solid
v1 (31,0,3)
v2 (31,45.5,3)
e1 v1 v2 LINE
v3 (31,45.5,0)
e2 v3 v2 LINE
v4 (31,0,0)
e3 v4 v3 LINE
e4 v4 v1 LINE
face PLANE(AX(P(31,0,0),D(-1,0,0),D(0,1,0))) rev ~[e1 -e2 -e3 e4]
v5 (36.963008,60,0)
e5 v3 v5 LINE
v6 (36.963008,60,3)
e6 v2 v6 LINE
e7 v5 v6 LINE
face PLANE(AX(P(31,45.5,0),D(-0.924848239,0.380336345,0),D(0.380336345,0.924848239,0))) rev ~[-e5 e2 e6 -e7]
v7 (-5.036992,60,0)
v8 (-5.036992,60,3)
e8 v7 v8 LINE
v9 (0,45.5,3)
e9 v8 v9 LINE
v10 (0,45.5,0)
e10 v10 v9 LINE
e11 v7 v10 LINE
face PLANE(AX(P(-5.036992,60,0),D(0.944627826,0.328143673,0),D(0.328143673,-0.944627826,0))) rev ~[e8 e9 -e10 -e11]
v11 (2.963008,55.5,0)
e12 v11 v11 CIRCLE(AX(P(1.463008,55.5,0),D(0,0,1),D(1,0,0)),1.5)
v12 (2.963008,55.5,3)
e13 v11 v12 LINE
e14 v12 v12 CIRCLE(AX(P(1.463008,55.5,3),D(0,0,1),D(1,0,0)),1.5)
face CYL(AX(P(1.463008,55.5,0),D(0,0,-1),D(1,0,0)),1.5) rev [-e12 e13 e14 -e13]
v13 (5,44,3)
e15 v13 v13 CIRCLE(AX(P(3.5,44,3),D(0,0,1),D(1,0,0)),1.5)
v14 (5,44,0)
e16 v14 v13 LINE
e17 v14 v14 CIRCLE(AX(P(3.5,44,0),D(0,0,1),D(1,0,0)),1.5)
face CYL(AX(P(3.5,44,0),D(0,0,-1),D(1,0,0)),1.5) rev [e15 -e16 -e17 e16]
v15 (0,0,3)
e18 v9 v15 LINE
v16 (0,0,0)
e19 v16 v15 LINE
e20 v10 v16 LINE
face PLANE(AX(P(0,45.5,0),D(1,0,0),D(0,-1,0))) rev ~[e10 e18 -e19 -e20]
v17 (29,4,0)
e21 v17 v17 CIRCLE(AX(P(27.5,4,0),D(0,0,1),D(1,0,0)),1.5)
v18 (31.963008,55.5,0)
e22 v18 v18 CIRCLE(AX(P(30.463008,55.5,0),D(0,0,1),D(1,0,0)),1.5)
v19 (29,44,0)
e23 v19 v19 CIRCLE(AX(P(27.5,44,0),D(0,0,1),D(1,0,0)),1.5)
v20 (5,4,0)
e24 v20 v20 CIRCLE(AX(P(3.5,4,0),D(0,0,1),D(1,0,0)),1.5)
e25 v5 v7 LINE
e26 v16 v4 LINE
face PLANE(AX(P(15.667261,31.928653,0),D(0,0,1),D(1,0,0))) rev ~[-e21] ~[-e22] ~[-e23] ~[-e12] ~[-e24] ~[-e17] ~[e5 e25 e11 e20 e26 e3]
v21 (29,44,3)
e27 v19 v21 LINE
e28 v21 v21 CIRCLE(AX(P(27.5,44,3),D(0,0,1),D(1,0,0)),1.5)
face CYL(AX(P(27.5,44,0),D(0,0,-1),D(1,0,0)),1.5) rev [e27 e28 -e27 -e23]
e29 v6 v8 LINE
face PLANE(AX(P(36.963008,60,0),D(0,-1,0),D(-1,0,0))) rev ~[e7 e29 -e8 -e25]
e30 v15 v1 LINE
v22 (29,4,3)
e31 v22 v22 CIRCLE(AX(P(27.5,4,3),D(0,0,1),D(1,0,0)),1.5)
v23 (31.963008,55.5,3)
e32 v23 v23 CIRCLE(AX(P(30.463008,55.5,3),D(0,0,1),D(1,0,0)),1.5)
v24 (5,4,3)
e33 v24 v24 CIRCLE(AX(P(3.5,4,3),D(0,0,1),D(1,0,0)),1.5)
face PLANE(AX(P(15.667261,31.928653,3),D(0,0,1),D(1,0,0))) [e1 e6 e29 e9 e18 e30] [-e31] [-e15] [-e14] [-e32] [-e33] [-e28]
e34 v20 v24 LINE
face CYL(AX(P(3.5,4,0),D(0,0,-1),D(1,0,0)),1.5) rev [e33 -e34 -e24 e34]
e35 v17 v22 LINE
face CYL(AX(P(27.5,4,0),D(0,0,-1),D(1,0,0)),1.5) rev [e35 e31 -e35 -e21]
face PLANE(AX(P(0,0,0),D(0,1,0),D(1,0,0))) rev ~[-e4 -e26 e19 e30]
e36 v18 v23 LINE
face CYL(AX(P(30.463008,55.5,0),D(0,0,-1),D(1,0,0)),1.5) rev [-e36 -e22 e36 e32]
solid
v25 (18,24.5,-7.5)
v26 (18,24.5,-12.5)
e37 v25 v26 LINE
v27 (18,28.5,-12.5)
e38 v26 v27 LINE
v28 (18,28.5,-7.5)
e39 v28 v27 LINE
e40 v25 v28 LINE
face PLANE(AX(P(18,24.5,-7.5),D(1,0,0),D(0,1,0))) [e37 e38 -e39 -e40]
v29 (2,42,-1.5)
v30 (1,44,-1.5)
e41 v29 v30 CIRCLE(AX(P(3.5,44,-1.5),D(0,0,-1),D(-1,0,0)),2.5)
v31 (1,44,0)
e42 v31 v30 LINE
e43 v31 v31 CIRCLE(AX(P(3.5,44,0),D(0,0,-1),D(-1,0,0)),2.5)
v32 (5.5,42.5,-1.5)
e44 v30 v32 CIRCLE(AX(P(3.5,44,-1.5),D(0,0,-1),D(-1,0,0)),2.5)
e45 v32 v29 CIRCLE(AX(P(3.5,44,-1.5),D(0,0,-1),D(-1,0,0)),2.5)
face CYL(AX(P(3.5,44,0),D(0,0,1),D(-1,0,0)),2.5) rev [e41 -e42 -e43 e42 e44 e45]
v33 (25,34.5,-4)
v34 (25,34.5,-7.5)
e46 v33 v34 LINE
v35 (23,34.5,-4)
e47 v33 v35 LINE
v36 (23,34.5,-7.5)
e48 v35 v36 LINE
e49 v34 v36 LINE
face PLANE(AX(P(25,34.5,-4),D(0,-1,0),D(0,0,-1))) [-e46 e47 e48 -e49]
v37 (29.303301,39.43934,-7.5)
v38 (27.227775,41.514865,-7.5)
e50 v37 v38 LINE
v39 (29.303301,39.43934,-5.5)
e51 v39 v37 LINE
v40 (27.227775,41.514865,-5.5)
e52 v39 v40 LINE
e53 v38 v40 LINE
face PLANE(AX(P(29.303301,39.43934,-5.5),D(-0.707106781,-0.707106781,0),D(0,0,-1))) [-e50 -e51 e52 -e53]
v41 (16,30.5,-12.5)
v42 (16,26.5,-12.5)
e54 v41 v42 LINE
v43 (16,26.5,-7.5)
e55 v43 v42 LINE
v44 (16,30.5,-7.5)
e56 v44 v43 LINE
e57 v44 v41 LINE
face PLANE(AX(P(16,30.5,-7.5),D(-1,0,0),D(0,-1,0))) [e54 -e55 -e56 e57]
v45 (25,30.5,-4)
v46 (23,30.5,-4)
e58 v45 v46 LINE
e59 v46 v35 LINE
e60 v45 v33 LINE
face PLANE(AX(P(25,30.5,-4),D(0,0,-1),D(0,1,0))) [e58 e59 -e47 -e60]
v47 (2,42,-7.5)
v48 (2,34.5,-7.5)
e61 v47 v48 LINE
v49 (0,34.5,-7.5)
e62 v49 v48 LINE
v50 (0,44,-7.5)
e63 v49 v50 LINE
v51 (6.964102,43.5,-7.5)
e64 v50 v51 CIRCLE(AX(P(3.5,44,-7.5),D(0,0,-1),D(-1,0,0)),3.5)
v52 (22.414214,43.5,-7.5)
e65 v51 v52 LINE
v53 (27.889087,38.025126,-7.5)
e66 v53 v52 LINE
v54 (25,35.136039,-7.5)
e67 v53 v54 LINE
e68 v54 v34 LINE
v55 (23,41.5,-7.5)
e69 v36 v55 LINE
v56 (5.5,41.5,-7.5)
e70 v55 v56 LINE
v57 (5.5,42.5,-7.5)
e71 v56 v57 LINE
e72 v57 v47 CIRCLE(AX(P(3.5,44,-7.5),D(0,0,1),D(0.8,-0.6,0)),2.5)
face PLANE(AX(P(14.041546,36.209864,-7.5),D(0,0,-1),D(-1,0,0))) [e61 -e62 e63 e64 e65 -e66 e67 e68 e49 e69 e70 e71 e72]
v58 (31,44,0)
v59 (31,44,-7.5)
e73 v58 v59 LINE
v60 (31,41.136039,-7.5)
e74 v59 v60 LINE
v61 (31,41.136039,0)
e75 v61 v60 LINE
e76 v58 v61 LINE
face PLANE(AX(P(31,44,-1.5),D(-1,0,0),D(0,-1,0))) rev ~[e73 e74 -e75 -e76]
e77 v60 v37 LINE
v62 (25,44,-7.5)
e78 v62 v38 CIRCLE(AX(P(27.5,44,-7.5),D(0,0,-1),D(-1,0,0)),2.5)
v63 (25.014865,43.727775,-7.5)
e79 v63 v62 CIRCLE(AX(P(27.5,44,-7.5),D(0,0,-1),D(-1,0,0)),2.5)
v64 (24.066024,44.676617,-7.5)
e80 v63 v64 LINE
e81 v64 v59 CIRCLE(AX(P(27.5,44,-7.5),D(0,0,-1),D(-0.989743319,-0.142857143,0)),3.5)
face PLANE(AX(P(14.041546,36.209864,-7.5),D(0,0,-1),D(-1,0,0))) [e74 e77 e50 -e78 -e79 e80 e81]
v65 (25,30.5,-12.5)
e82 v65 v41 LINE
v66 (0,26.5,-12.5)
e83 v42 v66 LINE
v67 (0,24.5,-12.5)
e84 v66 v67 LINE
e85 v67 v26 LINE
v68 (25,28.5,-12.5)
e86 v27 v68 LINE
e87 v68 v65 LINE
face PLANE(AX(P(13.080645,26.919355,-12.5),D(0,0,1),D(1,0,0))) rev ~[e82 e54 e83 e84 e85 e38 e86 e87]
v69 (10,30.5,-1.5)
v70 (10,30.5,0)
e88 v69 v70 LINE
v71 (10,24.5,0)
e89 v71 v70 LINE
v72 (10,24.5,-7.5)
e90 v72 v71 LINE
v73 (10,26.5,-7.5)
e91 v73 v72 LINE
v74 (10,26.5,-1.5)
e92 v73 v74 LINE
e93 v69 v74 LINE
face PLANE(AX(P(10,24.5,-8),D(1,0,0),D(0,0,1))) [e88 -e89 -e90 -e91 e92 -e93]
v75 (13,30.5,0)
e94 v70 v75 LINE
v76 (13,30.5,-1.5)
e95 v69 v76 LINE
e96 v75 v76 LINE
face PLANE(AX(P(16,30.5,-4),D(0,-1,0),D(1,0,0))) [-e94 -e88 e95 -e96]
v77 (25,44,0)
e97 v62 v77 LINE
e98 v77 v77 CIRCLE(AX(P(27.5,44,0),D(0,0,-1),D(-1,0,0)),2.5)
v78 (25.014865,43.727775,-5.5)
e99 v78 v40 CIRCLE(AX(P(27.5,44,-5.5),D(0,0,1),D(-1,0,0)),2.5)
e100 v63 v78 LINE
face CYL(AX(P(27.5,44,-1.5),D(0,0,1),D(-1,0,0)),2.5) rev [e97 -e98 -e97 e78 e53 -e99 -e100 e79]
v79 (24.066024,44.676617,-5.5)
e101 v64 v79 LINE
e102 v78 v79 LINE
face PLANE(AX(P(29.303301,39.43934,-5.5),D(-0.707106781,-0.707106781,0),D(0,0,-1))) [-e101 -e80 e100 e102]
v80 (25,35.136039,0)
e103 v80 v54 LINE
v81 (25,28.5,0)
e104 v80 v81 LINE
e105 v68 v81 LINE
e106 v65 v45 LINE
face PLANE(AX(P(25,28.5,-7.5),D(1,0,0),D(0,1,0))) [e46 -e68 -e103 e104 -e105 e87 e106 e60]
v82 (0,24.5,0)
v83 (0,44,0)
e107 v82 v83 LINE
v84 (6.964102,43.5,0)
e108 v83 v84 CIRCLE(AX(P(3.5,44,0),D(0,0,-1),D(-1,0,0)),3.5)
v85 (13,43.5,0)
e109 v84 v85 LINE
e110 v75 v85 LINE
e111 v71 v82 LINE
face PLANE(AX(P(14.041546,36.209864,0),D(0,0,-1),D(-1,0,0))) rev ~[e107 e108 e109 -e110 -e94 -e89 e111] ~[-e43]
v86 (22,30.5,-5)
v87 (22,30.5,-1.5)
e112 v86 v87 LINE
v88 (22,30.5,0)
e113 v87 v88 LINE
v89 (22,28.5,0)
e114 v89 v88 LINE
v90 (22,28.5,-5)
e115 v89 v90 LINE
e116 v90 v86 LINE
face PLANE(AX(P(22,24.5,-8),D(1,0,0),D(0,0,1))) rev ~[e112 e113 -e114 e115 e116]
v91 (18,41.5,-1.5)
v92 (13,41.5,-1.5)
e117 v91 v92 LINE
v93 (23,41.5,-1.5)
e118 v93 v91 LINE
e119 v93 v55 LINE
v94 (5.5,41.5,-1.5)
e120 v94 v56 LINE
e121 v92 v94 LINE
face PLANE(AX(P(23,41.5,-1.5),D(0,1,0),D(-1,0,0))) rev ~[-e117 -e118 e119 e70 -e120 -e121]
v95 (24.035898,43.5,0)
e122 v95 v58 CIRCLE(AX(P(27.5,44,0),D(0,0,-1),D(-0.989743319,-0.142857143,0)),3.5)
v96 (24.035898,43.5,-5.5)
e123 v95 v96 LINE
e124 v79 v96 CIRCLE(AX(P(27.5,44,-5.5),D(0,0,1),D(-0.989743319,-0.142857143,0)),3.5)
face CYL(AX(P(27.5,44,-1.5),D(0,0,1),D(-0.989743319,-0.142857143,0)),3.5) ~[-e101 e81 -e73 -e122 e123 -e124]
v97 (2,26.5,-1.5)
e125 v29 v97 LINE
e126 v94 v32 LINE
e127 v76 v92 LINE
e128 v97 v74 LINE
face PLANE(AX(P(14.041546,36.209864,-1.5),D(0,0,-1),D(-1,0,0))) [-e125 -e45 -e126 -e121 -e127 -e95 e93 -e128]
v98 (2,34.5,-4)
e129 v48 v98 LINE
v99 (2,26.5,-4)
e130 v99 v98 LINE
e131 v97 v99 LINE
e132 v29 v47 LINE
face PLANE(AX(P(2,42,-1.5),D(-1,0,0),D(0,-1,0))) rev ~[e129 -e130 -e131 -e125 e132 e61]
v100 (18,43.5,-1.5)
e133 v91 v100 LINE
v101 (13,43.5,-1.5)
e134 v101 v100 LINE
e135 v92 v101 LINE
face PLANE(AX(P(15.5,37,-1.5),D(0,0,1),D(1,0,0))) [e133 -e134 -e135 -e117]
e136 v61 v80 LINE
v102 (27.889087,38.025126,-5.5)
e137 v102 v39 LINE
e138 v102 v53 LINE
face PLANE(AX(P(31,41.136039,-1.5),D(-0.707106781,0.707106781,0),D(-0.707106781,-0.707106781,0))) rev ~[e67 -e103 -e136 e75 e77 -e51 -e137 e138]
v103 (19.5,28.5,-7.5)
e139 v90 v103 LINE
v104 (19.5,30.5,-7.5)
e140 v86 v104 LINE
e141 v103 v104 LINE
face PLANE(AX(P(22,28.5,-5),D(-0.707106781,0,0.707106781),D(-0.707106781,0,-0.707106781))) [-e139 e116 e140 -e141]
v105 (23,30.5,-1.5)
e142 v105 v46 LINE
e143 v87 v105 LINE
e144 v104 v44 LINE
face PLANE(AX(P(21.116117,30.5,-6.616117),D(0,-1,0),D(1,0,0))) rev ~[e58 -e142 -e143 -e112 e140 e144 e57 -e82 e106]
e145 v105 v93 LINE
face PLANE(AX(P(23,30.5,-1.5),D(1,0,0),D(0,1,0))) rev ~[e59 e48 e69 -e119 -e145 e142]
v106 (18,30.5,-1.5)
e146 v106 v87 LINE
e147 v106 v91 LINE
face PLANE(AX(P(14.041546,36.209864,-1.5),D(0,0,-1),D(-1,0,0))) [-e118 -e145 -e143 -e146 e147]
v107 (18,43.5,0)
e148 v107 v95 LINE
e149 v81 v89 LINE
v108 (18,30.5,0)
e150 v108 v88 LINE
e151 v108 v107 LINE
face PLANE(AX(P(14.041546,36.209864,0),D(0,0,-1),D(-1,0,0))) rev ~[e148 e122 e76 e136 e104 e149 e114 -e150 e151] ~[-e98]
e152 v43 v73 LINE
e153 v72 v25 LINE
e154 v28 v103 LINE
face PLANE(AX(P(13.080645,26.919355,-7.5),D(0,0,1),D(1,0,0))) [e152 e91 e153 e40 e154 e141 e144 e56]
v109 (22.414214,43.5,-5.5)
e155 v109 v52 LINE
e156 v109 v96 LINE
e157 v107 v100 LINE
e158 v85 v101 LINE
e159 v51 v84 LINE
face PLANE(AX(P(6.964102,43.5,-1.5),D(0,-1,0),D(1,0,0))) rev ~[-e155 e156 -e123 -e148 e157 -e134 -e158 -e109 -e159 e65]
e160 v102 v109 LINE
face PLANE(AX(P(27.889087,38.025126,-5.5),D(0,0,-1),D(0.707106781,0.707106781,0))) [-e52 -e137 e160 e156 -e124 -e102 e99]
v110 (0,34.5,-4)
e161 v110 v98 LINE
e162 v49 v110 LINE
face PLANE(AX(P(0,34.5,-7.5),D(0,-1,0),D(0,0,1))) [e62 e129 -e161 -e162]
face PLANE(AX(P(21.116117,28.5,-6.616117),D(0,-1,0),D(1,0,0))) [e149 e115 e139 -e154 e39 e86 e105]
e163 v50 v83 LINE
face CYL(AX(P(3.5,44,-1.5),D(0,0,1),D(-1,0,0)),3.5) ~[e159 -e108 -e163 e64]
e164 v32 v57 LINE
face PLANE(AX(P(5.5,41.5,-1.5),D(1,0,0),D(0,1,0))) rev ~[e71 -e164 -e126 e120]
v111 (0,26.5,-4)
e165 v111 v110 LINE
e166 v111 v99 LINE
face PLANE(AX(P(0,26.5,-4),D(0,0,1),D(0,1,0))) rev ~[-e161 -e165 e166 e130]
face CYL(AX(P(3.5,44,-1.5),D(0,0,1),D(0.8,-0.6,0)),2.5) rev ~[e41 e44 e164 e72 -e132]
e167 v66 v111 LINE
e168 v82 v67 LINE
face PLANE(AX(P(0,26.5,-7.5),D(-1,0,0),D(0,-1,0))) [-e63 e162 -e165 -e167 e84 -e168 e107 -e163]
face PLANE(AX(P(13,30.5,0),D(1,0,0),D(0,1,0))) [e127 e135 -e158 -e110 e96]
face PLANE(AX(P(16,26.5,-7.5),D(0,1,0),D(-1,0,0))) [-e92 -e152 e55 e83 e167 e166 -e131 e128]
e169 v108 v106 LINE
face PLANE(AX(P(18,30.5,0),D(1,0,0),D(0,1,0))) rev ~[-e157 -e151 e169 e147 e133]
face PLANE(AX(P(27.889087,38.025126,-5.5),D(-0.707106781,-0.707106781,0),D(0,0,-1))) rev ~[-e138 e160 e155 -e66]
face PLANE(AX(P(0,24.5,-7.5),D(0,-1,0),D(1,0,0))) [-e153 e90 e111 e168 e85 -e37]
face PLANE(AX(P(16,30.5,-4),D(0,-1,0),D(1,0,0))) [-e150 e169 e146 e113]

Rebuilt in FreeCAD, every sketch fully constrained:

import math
import FreeCAD as App
import Part
import Sketcher
Q = App.Units.Quantity


def add_polygon(sketch, points):
    """Adds a closed chain of lines whose ends are joined by coincident constraints."""
    first, n = sketch.GeometryCount, len(points)
    for a, b in zip(points, points[1:] + points[:1]):
        sketch.addGeometry(Part.LineSegment(App.Vector(*a, 0), App.Vector(*b, 0)), False)
    for i in range(n):
        sketch.addConstraint(Sketcher.Constraint("Coincident", first + i, 2, first + (i + 1) % n, 1))

doc = App.newDocument("Part")
params = doc.addObject("Spreadsheet::Sheet", "Params")
for row, (alias, value) in enumerate([
    ("sketch1_diameter", "3 mm"),
    ("sketch1_width", "31 mm"),
    ("sketch1_width2", "42 mm"),
    ("sketch1_height", "45.5 mm"),
    ("pad1_length", "3 mm"),
    ("sketch2_diameter", "5 mm"),
    ("sketch2_radius", "3.5 mm"),
    ("sketch2_width", "7 mm"),
    ("sketch2_width2", "18 mm"),
    ("sketch2_height", "4 mm"),
    ("pad2_length", "1.5 mm"),
    ("sketch3_diameter", "5 mm"),
    ("sketch3_radius", "3.5 mm"),
    ("sketch3_width", "7 mm"),
    ("sketch3_width2", "18 mm"),
    ("sketch3_width3", "14 mm"),
    ("pad3_length", "6 mm"),
    ("sketch4_width", "12 mm"),
    ("sketch4_height", "8 mm"),
    ("pocket1_length", "6 mm"),
    ("sketch5_width", "4 mm"),
    ("sketch5_height", "8 mm"),
    ("pocket2_length", "2 mm"),
    ("sketch6_width", "5 mm"),
    ("sketch6_height", "13 mm"),
    ("pocket3_length", "1.5 mm"),
    ("sketch7_width", "2 mm"),
    ("sketch8_width", "7 mm"),
    ("sketch8_width2", "18 mm"),
    ("sketch8_width3", "16 mm"),
    ("sketch8_height", "4 mm"),
    ("sketch8_height2", "2 mm"),
    ("pad4_length", "5 mm"),
    ("sketch9_width", "8 mm"),
    ("sketch9_height", "3.5 mm"),
    ("pocket5_length", "2 mm"),
    ("sketch10_width", "2.5 mm"),
    ("pad5_length", "2 mm"),
], start=1):
    params.set(f"A{row}", alias)
    params.set(f"B{row}", "=" + value)
    params.setAlias(f"B{row}", alias)

body = doc.addObject("PartDesign::Body", "Body")

# Sketch on XY plane
sketch1 = body.newObject("Sketcher::SketchObject", "Sketch")
sketch1.AttachmentSupport = (doc.getObject("XY_Plane"), [""])
sketch1.MapMode = "FlatFace"
add_polygon(sketch1, [(0, 0), (31, 0), (31, 45.5), (37, 60), (-5, 60), (0, 45.5)])  # lines 0-5
sketch1.addGeometry(Part.Circle(App.Vector(3.5, 4, 0), App.Vector(0, 0, 1), 1.5), False)  # 6
sketch1.addGeometry(Part.Circle(App.Vector(27.5, 4, 0), App.Vector(0, 0, 1), 1.5), False)  # 7
sketch1.addGeometry(Part.Circle(App.Vector(3.5, 44, 0), App.Vector(0, 0, 1), 1.5), False)  # 8
sketch1.addGeometry(Part.Circle(App.Vector(1.5, 55.5, 0), App.Vector(0, 0, 1), 1.5), False)  # 9
sketch1.addGeometry(Part.Circle(App.Vector(27.5, 44, 0), App.Vector(0, 0, 1), 1.5), False)  # 10
sketch1.addGeometry(Part.Circle(App.Vector(30.5, 55.5, 0), App.Vector(0, 0, 1), 1.5), False)  # 11
sketch1.addConstraint(Sketcher.Constraint("Horizontal", 0))
sketch1.addConstraint(Sketcher.Constraint("Vertical", 1))
sketch1.addConstraint(Sketcher.Constraint("Horizontal", 3))
sketch1.addConstraint(Sketcher.Constraint("Vertical", 5))
sketch1.addConstraint(Sketcher.Constraint("Coincident", 5, 2, -1, 1))
sketch1.addConstraint(Sketcher.Constraint("Equal", 6, 7))
sketch1.addConstraint(Sketcher.Constraint("Equal", 7, 8))
sketch1.addConstraint(Sketcher.Constraint("Equal", 8, 9))
sketch1.addConstraint(Sketcher.Constraint("Equal", 9, 10))
sketch1.addConstraint(Sketcher.Constraint("Equal", 10, 11))
sketch1.addConstraint(Sketcher.Constraint("Horizontal", 6, 3, 7, 3))
sketch1.addConstraint(Sketcher.Constraint("Horizontal", 8, 3, 10, 3))
sketch1.addConstraint(Sketcher.Constraint("Horizontal", 9, 3, 11, 3))
sketch1.addConstraint(Sketcher.Constraint("Horizontal", 1, 2, 4, 2))
sketch1.addConstraint(Sketcher.Constraint("Vertical", 6, 3, 8, 3))
sketch1.addConstraint(Sketcher.Constraint("Vertical", 7, 3, 10, 3))
sketch1.addConstraint(Sketcher.Constraint("Diameter", 6, 3.0))
sketch1.addConstraint(Sketcher.Constraint("DistanceX", 0, 1, 0, 2, 31.0))
sketch1.addConstraint(Sketcher.Constraint("DistanceX", 3, 2, 3, 1, 42.0))
sketch1.addConstraint(Sketcher.Constraint("DistanceY", 1, 1, 1, 2, 45.5))
sketch1.addConstraint(Sketcher.Constraint("DistanceY", -1, 1, 6, 3, 4.0))
sketch1.addConstraint(Sketcher.Constraint("DistanceY", -1, 1, 8, 3, 44.0))
sketch1.addConstraint(Sketcher.Constraint("DistanceY", -1, 1, 2, 2, 60.0))
sketch1.addConstraint(Sketcher.Constraint("DistanceX", 6, 3, 7, 3, 24.0))
sketch1.addConstraint(Sketcher.Constraint("DistanceX", 9, 3, 11, 3, 29.0))
sketch1.addConstraint(Sketcher.Constraint("DistanceY", 1, 2, 11, 3, 10.0))
sketch1.addConstraint(Sketcher.Constraint("DistanceX", -1, 1, 6, 3, 3.5))
sketch1.addConstraint(Sketcher.Constraint("DistanceX", 11, 3, 2, 2, 6.5))
sketch1.addConstraint(Sketcher.Constraint("Distance", 4, 15.349961))
sketch1.setExpression("Constraints[22]", "Params.sketch1_diameter")
sketch1.setExpression("Constraints[23]", "Params.sketch1_width")
sketch1.setExpression("Constraints[24]", "Params.sketch1_width2")
sketch1.setExpression("Constraints[25]", "Params.sketch1_height")
pad1 = body.newObject("PartDesign::Pad", "Pad")
pad1.Profile = sketch1
pad1.setExpression("Length", "Params.pad1_length")
body2 = doc.addObject("PartDesign::Body", "Body001")

# Sketch on XY plane
sketch2 = body2.newObject("Sketcher::SketchObject", "Sketch001")
sketch2.AttachmentSupport = (doc.getObject("XY_Plane001"), [""])
sketch2.MapMode = "FlatFace"
sketch2.addGeometry(Part.LineSegment(App.Vector(0, 24.5, 0), App.Vector(0, 44, 0)), False)
sketch2.addGeometry(Part.ArcOfCircle(Part.Circle(App.Vector(3.5, 44, 0), App.Vector(0, 0, 1), 3.5), math.radians(-8), math.radians(180)), False)
sketch2.addGeometry(Part.LineSegment(App.Vector(7, 43.5, 0), App.Vector(24, 43.5, 0)), False)
sketch2.addGeometry(Part.ArcOfCircle(Part.Circle(App.Vector(27.5, 44, 0), App.Vector(0, 0, 1), 3.5), math.radians(0), math.radians(188)), False)
sketch2.addGeometry(Part.LineSegment(App.Vector(31, 44, 0), App.Vector(31, 41.1, 0)), False)
sketch2.addGeometry(Part.LineSegment(App.Vector(31, 41.1, 0), App.Vector(25, 35.1, 0)), False)
sketch2.addGeometry(Part.LineSegment(App.Vector(25, 35.1, 0), App.Vector(25, 28.5, 0)), False)
sketch2.addGeometry(Part.LineSegment(App.Vector(25, 28.5, 0), App.Vector(18, 28.5, 0)), False)
sketch2.addGeometry(Part.LineSegment(App.Vector(18, 28.5, 0), App.Vector(18, 24.5, 0)), False)
sketch2.addGeometry(Part.LineSegment(App.Vector(18, 24.5, 0), App.Vector(0, 24.5, 0)), False)
sketch2.addGeometry(Part.Circle(App.Vector(27.5, 44, 0), App.Vector(0, 0, 1), 2.5), False)
sketch2.addGeometry(Part.Circle(App.Vector(3.5, 44, 0), App.Vector(0, 0, 1), 2.5), False)
sketch2.addConstraint(Sketcher.Constraint("Tangent", 0, 2, 1, 2))
sketch2.addConstraint(Sketcher.Constraint("Coincident", 1, 1, 2, 1))
sketch2.addConstraint(Sketcher.Constraint("Coincident", 2, 2, 3, 2))
sketch2.addConstraint(Sketcher.Constraint("Tangent", 3, 1, 4, 1))
sketch2.addConstraint(Sketcher.Constraint("Coincident", 4, 2, 5, 1))
sketch2.addConstraint(Sketcher.Constraint("Coincident", 5, 2, 6, 1))
sketch2.addConstraint(Sketcher.Constraint("Coincident", 6, 2, 7, 1))
sketch2.addConstraint(Sketcher.Constraint("Coincident", 7, 2, 8, 1))
sketch2.addConstraint(Sketcher.Constraint("Coincident", 8, 2, 9, 1))
sketch2.addConstraint(Sketcher.Constraint("Coincident", 9, 2, 0, 1))
sketch2.addConstraint(Sketcher.Constraint("Vertical", 0))
sketch2.addConstraint(Sketcher.Constraint("Horizontal", 2))
sketch2.addConstraint(Sketcher.Constraint("Vertical", 4))
sketch2.addConstraint(Sketcher.Constraint("Vertical", 6))
sketch2.addConstraint(Sketcher.Constraint("Horizontal", 7))
sketch2.addConstraint(Sketcher.Constraint("Vertical", 8))
sketch2.addConstraint(Sketcher.Constraint("Horizontal", 9))
sketch2.addConstraint(Sketcher.Constraint("Coincident", 10, 3, 3, 3))
sketch2.addConstraint(Sketcher.Constraint("Coincident", 11, 3, 1, 3))
sketch2.addConstraint(Sketcher.Constraint("Equal", 1, 3))
sketch2.addConstraint(Sketcher.Constraint("Equal", 10, 11))
sketch2.addConstraint(Sketcher.Constraint("PointOnObject", 0, 2, -2))
sketch2.addConstraint(Sketcher.Constraint("Horizontal", 1, 3, 3, 3))
sketch2.addConstraint(Sketcher.Constraint("Diameter", 10, 5.0))
sketch2.addConstraint(Sketcher.Constraint("Radius", 1, 3.5))
sketch2.addConstraint(Sketcher.Constraint("DistanceX", 7, 2, 7, 1, 7.0))
sketch2.addConstraint(Sketcher.Constraint("DistanceX", 9, 2, 9, 1, 18.0))
sketch2.addConstraint(Sketcher.Constraint("DistanceY", 8, 2, 8, 1, 4.0))
sketch2.addConstraint(Sketcher.Constraint("Angle", 5, Q("-135 deg")))
sketch2.addConstraint(Sketcher.Constraint("DistanceY", 0, 1, 0, 2, 19.5))
sketch2.addConstraint(Sketcher.Constraint("DistanceY", -1, 1, 1, 3, 44.0))
sketch2.addConstraint(Sketcher.Constraint("DistanceX", -1, 1, 3, 1, 31.0))
sketch2.addConstraint(Sketcher.Constraint("DistanceY", 6, 2, 2, 2, 15.0))
sketch2.addConstraint(Sketcher.Constraint("DistanceY", 4, 2, 4, 1, 2.863961))
sketch2.setExpression("Constraints[23]", "Params.sketch2_diameter")
sketch2.setExpression("Constraints[24]", "Params.sketch2_radius")
sketch2.setExpression("Constraints[25]", "Params.sketch2_width")
sketch2.setExpression("Constraints[26]", "Params.sketch2_width2")
sketch2.setExpression("Constraints[27]", "Params.sketch2_height")
pad2 = body2.newObject("PartDesign::Pad", "Pad001")
pad2.Profile = sketch2
pad2.setExpression("Length", "Params.pad2_length")
pad2.Reversed = True

# Sketch on XY plane
sketch3 = body2.newObject("Sketcher::SketchObject", "Sketch002")
sketch3.AttachmentSupport = (doc.getObject("XY_Plane001"), [""])
sketch3.MapMode = "FlatFace"
sketch3.AttachmentOffset = App.Placement(App.Vector(0, 0, -1.5), App.Rotation())
sketch3.addGeometry(Part.LineSegment(App.Vector(7, 43.5, 0), App.Vector(24, 43.5, 0)), False)
sketch3.addGeometry(Part.ArcOfCircle(Part.Circle(App.Vector(27.5, 44, 0), App.Vector(0, 0, 1), 3.5), math.radians(0), math.radians(188)), False)
sketch3.addGeometry(Part.LineSegment(App.Vector(31, 44, 0), App.Vector(31, 41.1, 0)), False)
sketch3.addGeometry(Part.LineSegment(App.Vector(31, 41.1, 0), App.Vector(25, 35.1, 0)), False)
sketch3.addGeometry(Part.LineSegment(App.Vector(25, 35.1, 0), App.Vector(25, 28.5, 0)), False)
sketch3.addGeometry(Part.LineSegment(App.Vector(25, 28.5, 0), App.Vector(18, 28.5, 0)), False)
sketch3.addGeometry(Part.LineSegment(App.Vector(18, 28.5, 0), App.Vector(18, 24.5, 0)), False)
sketch3.addGeometry(Part.LineSegment(App.Vector(18, 24.5, 0), App.Vector(0, 24.5, 0)), False)
sketch3.addGeometry(Part.LineSegment(App.Vector(0, 24.5, 0), App.Vector(0, 44, 0)), False)
sketch3.addGeometry(Part.ArcOfCircle(Part.Circle(App.Vector(3.5, 44, 0), App.Vector(0, 0, 1), 3.5), math.radians(-8), math.radians(180)), False)
sketch3.addGeometry(Part.LineSegment(App.Vector(23, 30.5, 0), App.Vector(23, 41.5, 0)), False)
sketch3.addGeometry(Part.LineSegment(App.Vector(23, 41.5, 0), App.Vector(5.5, 41.5, 0)), False)
sketch3.addGeometry(Part.LineSegment(App.Vector(5.5, 41.5, 0), App.Vector(5.5, 42.5, 0)), False)
sketch3.addGeometry(Part.ArcOfCircle(Part.Circle(App.Vector(3.5, 44, 0), App.Vector(0, 0, 1), 2.5), math.radians(-37), math.radians(233)), False)
sketch3.addGeometry(Part.LineSegment(App.Vector(2, 42, 0), App.Vector(2, 26.5, 0)), False)
sketch3.addGeometry(Part.LineSegment(App.Vector(2, 26.5, 0), App.Vector(16, 26.5, 0)), False)
sketch3.addGeometry(Part.LineSegment(App.Vector(16, 26.5, 0), App.Vector(16, 30.5, 0)), False)
sketch3.addGeometry(Part.LineSegment(App.Vector(16, 30.5, 0), App.Vector(23, 30.5, 0)), False)
sketch3.addGeometry(Part.Circle(App.Vector(27.5, 44, 0), App.Vector(0, 0, 1), 2.5), False)
sketch3.addConstraint(Sketcher.Constraint("Coincident", 0, 2, 1, 2))
sketch3.addConstraint(Sketcher.Constraint("Tangent", 1, 1, 2, 1))
sketch3.addConstraint(Sketcher.Constraint("Coincident", 2, 2, 3, 1))
sketch3.addConstraint(Sketcher.Constraint("Coincident", 3, 2, 4, 1))
sketch3.addConstraint(Sketcher.Constraint("Coincident", 4, 2, 5, 1))
sketch3.addConstraint(Sketcher.Constraint("Coincident", 5, 2, 6, 1))
sketch3.addConstraint(Sketcher.Constraint("Coincident", 6, 2, 7, 1))
sketch3.addConstraint(Sketcher.Constraint("Coincident", 7, 2, 8, 1))
sketch3.addConstraint(Sketcher.Constraint("Tangent", 8, 2, 9, 2))
sketch3.addConstraint(Sketcher.Constraint("Coincident", 9, 1, 0, 1))
sketch3.addConstraint(Sketcher.Constraint("Coincident", 10, 2, 11, 1))
sketch3.addConstraint(Sketcher.Constraint("Coincident", 11, 2, 12, 1))
sketch3.addConstraint(Sketcher.Constraint("Coincident", 12, 2, 13, 1))
sketch3.addConstraint(Sketcher.Constraint("Coincident", 13, 2, 14, 1))
sketch3.addConstraint(Sketcher.Constraint("Coincident", 14, 2, 15, 1))
sketch3.addConstraint(Sketcher.Constraint("Coincident", 15, 2, 16, 1))
sketch3.addConstraint(Sketcher.Constraint("Coincident", 16, 2, 17, 1))
sketch3.addConstraint(Sketcher.Constraint("Coincident", 17, 2, 10, 1))
sketch3.addConstraint(Sketcher.Constraint("Horizontal", 0))
sketch3.addConstraint(Sketcher.Constraint("Vertical", 2))
sketch3.addConstraint(Sketcher.Constraint("Vertical", 4))
sketch3.addConstraint(Sketcher.Constraint("Horizontal", 5))
sketch3.addConstraint(Sketcher.Constraint("Vertical", 6))
sketch3.addConstraint(Sketcher.Constraint("Horizontal", 7))
sketch3.addConstraint(Sketcher.Constraint("Vertical", 8))
sketch3.addConstraint(Sketcher.Constraint("Vertical", 10))
sketch3.addConstraint(Sketcher.Constraint("Horizontal", 11))
sketch3.addConstraint(Sketcher.Constraint("Vertical", 12))
sketch3.addConstraint(Sketcher.Constraint("Vertical", 14))
sketch3.addConstraint(Sketcher.Constraint("Horizontal", 15))
sketch3.addConstraint(Sketcher.Constraint("Vertical", 16))
sketch3.addConstraint(Sketcher.Constraint("Horizontal", 17))
sketch3.addConstraint(Sketcher.Constraint("Coincident", 13, 3, 9, 3))
sketch3.addConstraint(Sketcher.Constraint("Coincident", 18, 3, 1, 3))
sketch3.addConstraint(Sketcher.Constraint("Equal", 1, 9))
sketch3.addConstraint(Sketcher.Constraint("Equal", 13, 18))
sketch3.addConstraint(Sketcher.Constraint("PointOnObject", 7, 2, -2))
sketch3.addConstraint(Sketcher.Constraint("Horizontal", 1, 3, 9, 3))
sketch3.addConstraint(Sketcher.Constraint("Equal", 5, 17))
sketch3.addConstraint(Sketcher.Constraint("Equal", 6, 16))
sketch3.addConstraint(Sketcher.Constraint("Diameter", 18, 5.0))
sketch3.addConstraint(Sketcher.Constraint("Radius", 1, 3.5))
sketch3.addConstraint(Sketcher.Constraint("DistanceX", 5, 2, 5, 1, 7.0))
sketch3.addConstraint(Sketcher.Constraint("DistanceX", 7, 2, 7, 1, 18.0))
sketch3.addConstraint(Sketcher.Constraint("DistanceX", 15, 1, 15, 2, 14.0))
sketch3.addConstraint(Sketcher.Constraint("DistanceY", 6, 2, 6, 1, 4.0))
sketch3.addConstraint(Sketcher.Constraint("DistanceY", 10, 1, 10, 2, 11.0))
sketch3.addConstraint(Sketcher.Constraint("DistanceY", 12, 1, 12, 2, 1.0))
sketch3.addConstraint(Sketcher.Constraint("Angle", 3, Q("-135 deg")))
sketch3.addConstraint(Sketcher.Constraint("DistanceX", 11, 2, 11, 1, 17.5))
sketch3.addConstraint(Sketcher.Constraint("DistanceY", 8, 1, 8, 2, 19.5))
sketch3.addConstraint(Sketcher.Constraint("DistanceY", 14, 2, 14, 1, 15.5))
sketch3.addConstraint(Sketcher.Constraint("DistanceY", -1, 1, 1, 3, 44.0))
sketch3.addConstraint(Sketcher.Constraint("DistanceX", -1, 1, 1, 1, 31.0))
sketch3.addConstraint(Sketcher.Constraint("DistanceY", 4, 2, 0, 2, 15.0))
sketch3.addConstraint(Sketcher.Constraint("DistanceY", 2, 2, 2, 1, 2.863961))
sketch3.setExpression("Constraints[40]", "Params.sketch3_diameter")
sketch3.setExpression("Constraints[41]", "Params.sketch3_radius")
sketch3.setExpression("Constraints[42]", "Params.sketch3_width")
sketch3.setExpression("Constraints[43]", "Params.sketch3_width2")
sketch3.setExpression("Constraints[44]", "Params.sketch3_width3")
pad3 = body2.newObject("PartDesign::Pad", "Pad002")
pad3.Profile = sketch3
pad3.setExpression("Length", "Params.pad3_length")
pad3.Reversed = True

# Sketch on XZ plane
sketch4 = body2.newObject("Sketcher::SketchObject", "Sketch003")
sketch4.AttachmentSupport = (doc.getObject("XZ_Plane001"), [""])
sketch4.MapMode = "FlatFace"
sketch4.AttachmentOffset = App.Placement(App.Vector(0, 0, -24.5), App.Rotation())
add_polygon(sketch4, [(10, 0), (10, -8), (22, -8), (22, 0)])  # lines 0-3
sketch4.addConstraint(Sketcher.Constraint("Vertical", 0))
sketch4.addConstraint(Sketcher.Constraint("Horizontal", 1))
sketch4.addConstraint(Sketcher.Constraint("Vertical", 2))
sketch4.addConstraint(Sketcher.Constraint("Horizontal", 3))
sketch4.addConstraint(Sketcher.Constraint("PointOnObject", 2, 2, -1))
sketch4.addConstraint(Sketcher.Constraint("DistanceX", 1, 1, 1, 2, 12.0))
sketch4.addConstraint(Sketcher.Constraint("DistanceY", 0, 2, 0, 1, 8.0))
sketch4.addConstraint(Sketcher.Constraint("DistanceX", -1, 1, 0, 2, 10.0))
sketch4.setExpression("Constraints[9]", "Params.sketch4_width")
sketch4.setExpression("Constraints[10]", "Params.sketch4_height")
pocket1 = body2.newObject("PartDesign::Pocket", "Pocket")
pocket1.Profile = sketch4
pocket1.setExpression("Length", "Params.pocket1_length")

# Sketch on YZ plane
sketch5 = body2.newObject("Sketcher::SketchObject", "Sketch004")
sketch5.AttachmentSupport = (doc.getObject("YZ_Plane001"), [""])
sketch5.MapMode = "FlatFace"
sketch5.AttachmentOffset = App.Placement(App.Vector(0, 0, 25), App.Rotation())
add_polygon(sketch5, [(34.5, -4), (30.5, -4), (30.5, -12), (34.5, -12)])  # lines 0-3
sketch5.addConstraint(Sketcher.Constraint("Horizontal", 0))
sketch5.addConstraint(Sketcher.Constraint("Vertical", 1))
sketch5.addConstraint(Sketcher.Constraint("Horizontal", 2))
sketch5.addConstraint(Sketcher.Constraint("Vertical", 3))
sketch5.addConstraint(Sketcher.Constraint("DistanceX", 0, 2, 0, 1, 4.0))
sketch5.addConstraint(Sketcher.Constraint("DistanceY", 1, 2, 1, 1, 8.0))
sketch5.addConstraint(Sketcher.Constraint("DistanceY", 0, 2, -1, 1, 4.0))
sketch5.addConstraint(Sketcher.Constraint("DistanceX", -1, 1, 0, 2, 30.5))
sketch5.setExpression("Constraints[8]", "Params.sketch5_width")
sketch5.setExpression("Constraints[9]", "Params.sketch5_height")
pocket2 = body2.newObject("PartDesign::Pocket", "Pocket001")
pocket2.Profile = sketch5
pocket2.setExpression("Length", "Params.pocket2_length")

# Sketch on XY plane
sketch6 = body2.newObject("Sketcher::SketchObject", "Sketch005")
sketch6.AttachmentSupport = (doc.getObject("XY_Plane001"), [""])
sketch6.MapMode = "FlatFace"
add_polygon(sketch6, [(13, 44), (13, 30), (18, 30), (18, 44)])  # lines 0-3
sketch6.addConstraint(Sketcher.Constraint("Vertical", 0))
sketch6.addConstraint(Sketcher.Constraint("Horizontal", 1))
sketch6.addConstraint(Sketcher.Constraint("Vertical", 2))
sketch6.addConstraint(Sketcher.Constraint("Horizontal", 3))
sketch6.addConstraint(Sketcher.Constraint("DistanceX", 1, 1, 1, 2, 5.0))
sketch6.addConstraint(Sketcher.Constraint("DistanceY", 0, 2, 0, 1, 13.0))
sketch6.addConstraint(Sketcher.Constraint("DistanceX", -1, 1, 0, 2, 13.0))
sketch6.addConstraint(Sketcher.Constraint("DistanceY", -1, 1, 0, 2, 30.5))
sketch6.setExpression("Constraints[8]", "Params.sketch6_width")
sketch6.setExpression("Constraints[9]", "Params.sketch6_height")
pocket3 = body2.newObject("PartDesign::Pocket", "Pocket002")
pocket3.Profile = sketch6
pocket3.setExpression("Length", "Params.pocket3_length")

# Sketch on an angled plane
sketch7 = body2.newObject("Sketcher::SketchObject", "Sketch006")
sketch7.Placement = App.Placement(App.Vector(-5.068019, 5.068019, 0), App.Rotation(App.Vector(0, 0, -1), App.Vector(0.707106781, 0.707106781, 0), App.Vector(0.707106781, -0.707106781, 0), "ZXY"))
add_polygon(sketch7, [(5.5, 48.6), (5.5, 46.6), (7.5, 46.6), (7.5, 48.6)])  # lines 0-3
sketch7.addConstraint(Sketcher.Constraint("Vertical", 0))
sketch7.addConstraint(Sketcher.Constraint("Horizontal", 1))
sketch7.addConstraint(Sketcher.Constraint("Vertical", 2))
sketch7.addConstraint(Sketcher.Constraint("Horizontal", 3))
sketch7.addConstraint(Sketcher.Constraint("Equal", 3, 0))
sketch7.addConstraint(Sketcher.Constraint("DistanceX", 1, 1, 1, 2, 2.0))
sketch7.addConstraint(Sketcher.Constraint("DistanceX", -1, 1, 0, 2, 5.5))
sketch7.addConstraint(Sketcher.Constraint("DistanceY", -1, 1, 0, 2, 46.608387))
sketch7.setExpression("Constraints[9]", "Params.sketch7_width")
pocket4 = body2.newObject("PartDesign::Pocket", "Pocket003")
pocket4.Profile = sketch7
pocket4.Type = "ThroughAll"

# Sketch on XY plane
sketch8 = body2.newObject("Sketcher::SketchObject", "Sketch007")
sketch8.AttachmentSupport = (doc.getObject("XY_Plane001"), [""])
sketch8.MapMode = "FlatFace"
sketch8.AttachmentOffset = App.Placement(App.Vector(0, 0, -7.5), App.Rotation())
add_polygon(sketch8, [(25, 28.5), (18, 28.5), (18, 24.5), (0, 24.5), (0, 26.5), (16, 26.5), (16, 30.5), (25, 30.5)])  # lines 0-7
sketch8.addConstraint(Sketcher.Constraint("Horizontal", 0))
sketch8.addConstraint(Sketcher.Constraint("Vertical", 1))
sketch8.addConstraint(Sketcher.Constraint("Horizontal", 2))
sketch8.addConstraint(Sketcher.Constraint("Vertical", 3))
sketch8.addConstraint(Sketcher.Constraint("Horizontal", 4))
sketch8.addConstraint(Sketcher.Constraint("Vertical", 5))
sketch8.addConstraint(Sketcher.Constraint("Horizontal", 6))
sketch8.addConstraint(Sketcher.Constraint("Vertical", 7))
sketch8.addConstraint(Sketcher.Constraint("PointOnObject", 2, 2, -2))
sketch8.addConstraint(Sketcher.Constraint("Equal", 1, 5))
sketch8.addConstraint(Sketcher.Constraint("DistanceX", 0, 2, 0, 1, 7.0))
sketch8.addConstraint(Sketcher.Constraint("DistanceX", 2, 2, 2, 1, 18.0))
sketch8.addConstraint(Sketcher.Constraint("DistanceX", 4, 1, 4, 2, 16.0))
sketch8.addConstraint(Sketcher.Constraint("DistanceY", 1, 2, 1, 1, 4.0))
sketch8.addConstraint(Sketcher.Constraint("DistanceY", 3, 1, 3, 2, 2.0))
sketch8.addConstraint(Sketcher.Constraint("DistanceY", -1, 1, 0, 2, 28.5))
sketch8.setExpression("Constraints[18]", "Params.sketch8_width")
sketch8.setExpression("Constraints[19]", "Params.sketch8_width2")
sketch8.setExpression("Constraints[20]", "Params.sketch8_width3")
sketch8.setExpression("Constraints[21]", "Params.sketch8_height")
sketch8.setExpression("Constraints[22]", "Params.sketch8_height2")
pad4 = body2.newObject("PartDesign::Pad", "Pad003")
pad4.Profile = sketch8
pad4.setExpression("Length", "Params.pad4_length")
pad4.Reversed = True

# Sketch on YZ plane
sketch9 = body2.newObject("Sketcher::SketchObject", "Sketch008")
sketch9.AttachmentSupport = (doc.getObject("YZ_Plane001"), [""])
sketch9.MapMode = "FlatFace"
add_polygon(sketch9, [(34.5, -7.5), (26.5, -7.5), (26.5, -4), (34.5, -4)])  # lines 0-3
sketch9.addConstraint(Sketcher.Constraint("Horizontal", 0))
sketch9.addConstraint(Sketcher.Constraint("Vertical", 1))
sketch9.addConstraint(Sketcher.Constraint("Horizontal", 2))
sketch9.addConstraint(Sketcher.Constraint("Vertical", 3))
sketch9.addConstraint(Sketcher.Constraint("DistanceX", 0, 2, 0, 1, 8.0))
sketch9.addConstraint(Sketcher.Constraint("DistanceY", 1, 1, 1, 2, 3.5))
sketch9.addConstraint(Sketcher.Constraint("DistanceY", 1, 2, -1, 1, 4.0))
sketch9.addConstraint(Sketcher.Constraint("DistanceX", -1, 1, 0, 2, 26.5))
sketch9.setExpression("Constraints[8]", "Params.sketch9_width")
sketch9.setExpression("Constraints[9]", "Params.sketch9_height")
pocket5 = body2.newObject("PartDesign::Pocket", "Pocket004")
pocket5.Profile = sketch9
pocket5.setExpression("Length", "Params.pocket5_length")
pocket5.Reversed = True

# Sketch on XZ plane
sketch10 = body2.newObject("Sketcher::SketchObject", "Sketch009")
sketch10.AttachmentSupport = (doc.getObject("XZ_Plane001"), [""])
sketch10.MapMode = "FlatFace"
sketch10.AttachmentOffset = App.Placement(App.Vector(0, 0, -28.5), App.Rotation())
add_polygon(sketch10, [(22, -5), (19.5, -7.5), (22, -7.5)])  # lines 0-2
sketch10.addConstraint(Sketcher.Constraint("Horizontal", 1))
sketch10.addConstraint(Sketcher.Constraint("Vertical", 2))
sketch10.addConstraint(Sketcher.Constraint("Equal", 1, 2))
sketch10.addConstraint(Sketcher.Constraint("DistanceX", 1, 1, 1, 2, 2.5))
sketch10.addConstraint(Sketcher.Constraint("DistanceX", -1, 1, 1, 2, 22.0))
sketch10.addConstraint(Sketcher.Constraint("DistanceY", 2, 2, -1, 1, 5.0))
sketch10.setExpression("Constraints[6]", "Params.sketch10_width")
pad5 = body2.newObject("PartDesign::Pad", "Pad004")
pad5.Profile = sketch10
pad5.setExpression("Length", "Params.pad5_length")
pad5.Reversed = True

doc.recompute()
